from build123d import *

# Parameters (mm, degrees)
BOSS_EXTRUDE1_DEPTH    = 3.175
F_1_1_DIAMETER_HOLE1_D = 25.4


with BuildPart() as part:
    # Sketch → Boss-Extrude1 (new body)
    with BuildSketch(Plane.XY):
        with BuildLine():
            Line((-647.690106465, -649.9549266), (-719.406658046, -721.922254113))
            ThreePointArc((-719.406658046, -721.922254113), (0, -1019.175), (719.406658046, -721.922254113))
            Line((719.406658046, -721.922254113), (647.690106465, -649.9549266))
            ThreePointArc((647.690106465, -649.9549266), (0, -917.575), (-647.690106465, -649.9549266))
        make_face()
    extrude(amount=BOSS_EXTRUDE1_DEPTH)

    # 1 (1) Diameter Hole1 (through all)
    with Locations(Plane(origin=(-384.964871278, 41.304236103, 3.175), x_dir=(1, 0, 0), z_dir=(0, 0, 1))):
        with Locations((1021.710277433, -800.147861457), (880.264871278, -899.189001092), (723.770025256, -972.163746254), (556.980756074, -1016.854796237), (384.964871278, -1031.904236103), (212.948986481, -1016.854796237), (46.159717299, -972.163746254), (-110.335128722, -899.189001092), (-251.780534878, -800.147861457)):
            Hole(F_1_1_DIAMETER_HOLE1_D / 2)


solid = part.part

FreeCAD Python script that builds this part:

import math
import FreeCAD as App
import Part
import Sketcher

V = App.Vector
Q = App.Units.Quantity

doc = App.newDocument("Part")
params = doc.addObject("Spreadsheet::Sheet", "Params")
for row, (alias, value) in enumerate([
    ("sketch1_length", "4 in"),
    ("sketch1_radius", "40.125 in"),
    ("pad1_length", "0.125 in"),
    ("sketch2_diameter", "1 in"),
    ("hole_diameter", "1 in"),
], start=1):
    params.set(f"A{row}", alias)
    params.set(f"B{row}", "=" + value)
    params.setAlias(f"B{row}", alias)

body = doc.addObject("PartDesign::Body", "Body")

# Sketch on XY plane
sketch1 = doc.addObject("Sketcher::SketchObject", "Sketch")
body.addObject(sketch1)
sketch1.AttachmentSupport = (doc.XY_Plane, [""])
sketch1.MapMode = "FlatFace"
sketch1.addGeometry([
    Part.LineSegment(V(-648, -650, 0), V(-719, -722, 0)),
    Part.ArcOfCircle(Part.Circle(V(0, 0, 0), V(0, 0, 1), 1019), math.radians(-135), math.radians(-45)),
    Part.LineSegment(V(719, -722, 0), V(648, -650, 0)),
    Part.ArcOfCircle(Part.Circle(V(0, 0, 0), V(0, 0, 1), 918), math.radians(-135), math.radians(-45)),
], False)
sketch1.addConstraint([
    Sketcher.Constraint("Coincident", 0, 2, 1, 1),
    Sketcher.Constraint("Coincident", 1, 2, 2, 1),
    Sketcher.Constraint("Coincident", 2, 2, 3, 2),
    Sketcher.Constraint("Coincident", 3, 1, 0, 1),
    Sketcher.Constraint("Coincident", 1, 3, -1, 1),
    Sketcher.Constraint("Coincident", 3, 3, -1, 1),
    Sketcher.Constraint("Distance", 0, Q("4 in")),
    Sketcher.Constraint("Radius", 1, Q("40.125 in")),
    Sketcher.Constraint("Angle", 0, Q("-134.9 deg")),
    Sketcher.Constraint("Angle", 2, Q("134.9 deg")),
    Sketcher.Constraint("DistanceX", 0, 2, -1, 1, 719.406658),
    Sketcher.Constraint("DistanceX", -1, 1, 2, 2, 647.690106),
])
sketch1.setExpression("Constraints[6]", "Params.sketch1_length")
sketch1.setExpression("Constraints[7]", "Params.sketch1_radius")
pad1 = doc.addObject("PartDesign::Pad", "Pad")
body.addObject(pad1)
pad1.Profile = sketch1
pad1.setExpression("Length", "Params.pad1_length")

# Sketch on XY plane
sketch2 = doc.addObject("Sketcher::SketchObject", "Sketch001")
body.addObject(sketch2)
sketch2.AttachmentSupport = (doc.XY_Plane, [""])
sketch2.MapMode = "FlatFace"
sketch2.AttachmentOffset = App.Placement(V(0, 0, 0.125 * 25.4), App.Rotation())
sketch2.addGeometry([
    Part.Circle(V(637, -759, 0), V(0, 0, 1), 13),  # 0
    Part.Circle(V(495, -858, 0), V(0, 0, 1), 13),  # 1
    Part.Circle(V(339, -931, 0), V(0, 0, 1), 13),  # 2
    Part.Circle(V(172, -976, 0), V(0, 0, 1), 13),  # 3
    Part.Circle(V(0, -991, 0), V(0, 0, 1), 13),  # 4
    Part.Circle(V(-172, -976, 0), V(0, 0, 1), 13),  # 5
    Part.Circle(V(-339, -931, 0), V(0, 0, 1), 13),  # 6
    Part.Circle(V(-495, -858, 0), V(0, 0, 1), 13),  # 7
    Part.Circle(V(-637, -759, 0), V(0, 0, 1), 13),  # 8
], False)
sketch2.addConstraint([
    Sketcher.Constraint("Equal", 0, 1),
    Sketcher.Constraint("Equal", 1, 2),
    Sketcher.Constraint("Equal", 2, 3),
    Sketcher.Constraint("Equal", 3, 4),
    Sketcher.Constraint("Equal", 4, 5),
    Sketcher.Constraint("Equal", 5, 6),
    Sketcher.Constraint("Equal", 6, 7),
    Sketcher.Constraint("Equal", 7, 8),
    Sketcher.Constraint("Symmetric", 3, 3, 5, 3, -2),
    Sketcher.Constraint("Symmetric", 2, 3, 6, 3, -2),
    Sketcher.Constraint("Symmetric", 1, 3, 7, 3, -2),
    Sketcher.Constraint("Symmetric", 0, 3, 8, 3, -2),
    Sketcher.Constraint("PointOnObject", 4, 3, -2),
    Sketcher.Constraint("Diameter", 0, Q("1 in")),
    Sketcher.Constraint("DistanceY", 4, 3, -1, 1, Q("39 in")),
    Sketcher.Constraint("DistanceX", -1, 1, 1, 3, Q("19.5 in")),
    Sketcher.Constraint("DistanceY", 2, 3, -1, 1, 930.85951),
    Sketcher.Constraint("DistanceY", 3, 3, -1, 1, 975.55056),
    Sketcher.Constraint("DistanceY", 1, 3, 0, 3, 99.04114),
    Sketcher.Constraint("DistanceX", 3, 3, 2, 3, 166.789269),
    Sketcher.Constraint("DistanceX", 3, 3, 0, 3, 464.729521),
    Sketcher.Constraint("DistanceX", 5, 3, 3, 3, 344.03177),
    Sketcher.Constraint("DistanceY", 0, 3, -1, 1, 758.843625),
])
sketch2.setExpression("Constraints[13]", "Params.sketch2_diameter")
doc.recompute()
hole = doc.addObject("PartDesign::Hole", "Hole")
body.addObject(hole)
hole.Profile = sketch2
hole.ThreadType = "None"
hole.setExpression("Diameter", "Params.hole_diameter")
hole.DepthType = "ThroughAll"

doc.recompute()
